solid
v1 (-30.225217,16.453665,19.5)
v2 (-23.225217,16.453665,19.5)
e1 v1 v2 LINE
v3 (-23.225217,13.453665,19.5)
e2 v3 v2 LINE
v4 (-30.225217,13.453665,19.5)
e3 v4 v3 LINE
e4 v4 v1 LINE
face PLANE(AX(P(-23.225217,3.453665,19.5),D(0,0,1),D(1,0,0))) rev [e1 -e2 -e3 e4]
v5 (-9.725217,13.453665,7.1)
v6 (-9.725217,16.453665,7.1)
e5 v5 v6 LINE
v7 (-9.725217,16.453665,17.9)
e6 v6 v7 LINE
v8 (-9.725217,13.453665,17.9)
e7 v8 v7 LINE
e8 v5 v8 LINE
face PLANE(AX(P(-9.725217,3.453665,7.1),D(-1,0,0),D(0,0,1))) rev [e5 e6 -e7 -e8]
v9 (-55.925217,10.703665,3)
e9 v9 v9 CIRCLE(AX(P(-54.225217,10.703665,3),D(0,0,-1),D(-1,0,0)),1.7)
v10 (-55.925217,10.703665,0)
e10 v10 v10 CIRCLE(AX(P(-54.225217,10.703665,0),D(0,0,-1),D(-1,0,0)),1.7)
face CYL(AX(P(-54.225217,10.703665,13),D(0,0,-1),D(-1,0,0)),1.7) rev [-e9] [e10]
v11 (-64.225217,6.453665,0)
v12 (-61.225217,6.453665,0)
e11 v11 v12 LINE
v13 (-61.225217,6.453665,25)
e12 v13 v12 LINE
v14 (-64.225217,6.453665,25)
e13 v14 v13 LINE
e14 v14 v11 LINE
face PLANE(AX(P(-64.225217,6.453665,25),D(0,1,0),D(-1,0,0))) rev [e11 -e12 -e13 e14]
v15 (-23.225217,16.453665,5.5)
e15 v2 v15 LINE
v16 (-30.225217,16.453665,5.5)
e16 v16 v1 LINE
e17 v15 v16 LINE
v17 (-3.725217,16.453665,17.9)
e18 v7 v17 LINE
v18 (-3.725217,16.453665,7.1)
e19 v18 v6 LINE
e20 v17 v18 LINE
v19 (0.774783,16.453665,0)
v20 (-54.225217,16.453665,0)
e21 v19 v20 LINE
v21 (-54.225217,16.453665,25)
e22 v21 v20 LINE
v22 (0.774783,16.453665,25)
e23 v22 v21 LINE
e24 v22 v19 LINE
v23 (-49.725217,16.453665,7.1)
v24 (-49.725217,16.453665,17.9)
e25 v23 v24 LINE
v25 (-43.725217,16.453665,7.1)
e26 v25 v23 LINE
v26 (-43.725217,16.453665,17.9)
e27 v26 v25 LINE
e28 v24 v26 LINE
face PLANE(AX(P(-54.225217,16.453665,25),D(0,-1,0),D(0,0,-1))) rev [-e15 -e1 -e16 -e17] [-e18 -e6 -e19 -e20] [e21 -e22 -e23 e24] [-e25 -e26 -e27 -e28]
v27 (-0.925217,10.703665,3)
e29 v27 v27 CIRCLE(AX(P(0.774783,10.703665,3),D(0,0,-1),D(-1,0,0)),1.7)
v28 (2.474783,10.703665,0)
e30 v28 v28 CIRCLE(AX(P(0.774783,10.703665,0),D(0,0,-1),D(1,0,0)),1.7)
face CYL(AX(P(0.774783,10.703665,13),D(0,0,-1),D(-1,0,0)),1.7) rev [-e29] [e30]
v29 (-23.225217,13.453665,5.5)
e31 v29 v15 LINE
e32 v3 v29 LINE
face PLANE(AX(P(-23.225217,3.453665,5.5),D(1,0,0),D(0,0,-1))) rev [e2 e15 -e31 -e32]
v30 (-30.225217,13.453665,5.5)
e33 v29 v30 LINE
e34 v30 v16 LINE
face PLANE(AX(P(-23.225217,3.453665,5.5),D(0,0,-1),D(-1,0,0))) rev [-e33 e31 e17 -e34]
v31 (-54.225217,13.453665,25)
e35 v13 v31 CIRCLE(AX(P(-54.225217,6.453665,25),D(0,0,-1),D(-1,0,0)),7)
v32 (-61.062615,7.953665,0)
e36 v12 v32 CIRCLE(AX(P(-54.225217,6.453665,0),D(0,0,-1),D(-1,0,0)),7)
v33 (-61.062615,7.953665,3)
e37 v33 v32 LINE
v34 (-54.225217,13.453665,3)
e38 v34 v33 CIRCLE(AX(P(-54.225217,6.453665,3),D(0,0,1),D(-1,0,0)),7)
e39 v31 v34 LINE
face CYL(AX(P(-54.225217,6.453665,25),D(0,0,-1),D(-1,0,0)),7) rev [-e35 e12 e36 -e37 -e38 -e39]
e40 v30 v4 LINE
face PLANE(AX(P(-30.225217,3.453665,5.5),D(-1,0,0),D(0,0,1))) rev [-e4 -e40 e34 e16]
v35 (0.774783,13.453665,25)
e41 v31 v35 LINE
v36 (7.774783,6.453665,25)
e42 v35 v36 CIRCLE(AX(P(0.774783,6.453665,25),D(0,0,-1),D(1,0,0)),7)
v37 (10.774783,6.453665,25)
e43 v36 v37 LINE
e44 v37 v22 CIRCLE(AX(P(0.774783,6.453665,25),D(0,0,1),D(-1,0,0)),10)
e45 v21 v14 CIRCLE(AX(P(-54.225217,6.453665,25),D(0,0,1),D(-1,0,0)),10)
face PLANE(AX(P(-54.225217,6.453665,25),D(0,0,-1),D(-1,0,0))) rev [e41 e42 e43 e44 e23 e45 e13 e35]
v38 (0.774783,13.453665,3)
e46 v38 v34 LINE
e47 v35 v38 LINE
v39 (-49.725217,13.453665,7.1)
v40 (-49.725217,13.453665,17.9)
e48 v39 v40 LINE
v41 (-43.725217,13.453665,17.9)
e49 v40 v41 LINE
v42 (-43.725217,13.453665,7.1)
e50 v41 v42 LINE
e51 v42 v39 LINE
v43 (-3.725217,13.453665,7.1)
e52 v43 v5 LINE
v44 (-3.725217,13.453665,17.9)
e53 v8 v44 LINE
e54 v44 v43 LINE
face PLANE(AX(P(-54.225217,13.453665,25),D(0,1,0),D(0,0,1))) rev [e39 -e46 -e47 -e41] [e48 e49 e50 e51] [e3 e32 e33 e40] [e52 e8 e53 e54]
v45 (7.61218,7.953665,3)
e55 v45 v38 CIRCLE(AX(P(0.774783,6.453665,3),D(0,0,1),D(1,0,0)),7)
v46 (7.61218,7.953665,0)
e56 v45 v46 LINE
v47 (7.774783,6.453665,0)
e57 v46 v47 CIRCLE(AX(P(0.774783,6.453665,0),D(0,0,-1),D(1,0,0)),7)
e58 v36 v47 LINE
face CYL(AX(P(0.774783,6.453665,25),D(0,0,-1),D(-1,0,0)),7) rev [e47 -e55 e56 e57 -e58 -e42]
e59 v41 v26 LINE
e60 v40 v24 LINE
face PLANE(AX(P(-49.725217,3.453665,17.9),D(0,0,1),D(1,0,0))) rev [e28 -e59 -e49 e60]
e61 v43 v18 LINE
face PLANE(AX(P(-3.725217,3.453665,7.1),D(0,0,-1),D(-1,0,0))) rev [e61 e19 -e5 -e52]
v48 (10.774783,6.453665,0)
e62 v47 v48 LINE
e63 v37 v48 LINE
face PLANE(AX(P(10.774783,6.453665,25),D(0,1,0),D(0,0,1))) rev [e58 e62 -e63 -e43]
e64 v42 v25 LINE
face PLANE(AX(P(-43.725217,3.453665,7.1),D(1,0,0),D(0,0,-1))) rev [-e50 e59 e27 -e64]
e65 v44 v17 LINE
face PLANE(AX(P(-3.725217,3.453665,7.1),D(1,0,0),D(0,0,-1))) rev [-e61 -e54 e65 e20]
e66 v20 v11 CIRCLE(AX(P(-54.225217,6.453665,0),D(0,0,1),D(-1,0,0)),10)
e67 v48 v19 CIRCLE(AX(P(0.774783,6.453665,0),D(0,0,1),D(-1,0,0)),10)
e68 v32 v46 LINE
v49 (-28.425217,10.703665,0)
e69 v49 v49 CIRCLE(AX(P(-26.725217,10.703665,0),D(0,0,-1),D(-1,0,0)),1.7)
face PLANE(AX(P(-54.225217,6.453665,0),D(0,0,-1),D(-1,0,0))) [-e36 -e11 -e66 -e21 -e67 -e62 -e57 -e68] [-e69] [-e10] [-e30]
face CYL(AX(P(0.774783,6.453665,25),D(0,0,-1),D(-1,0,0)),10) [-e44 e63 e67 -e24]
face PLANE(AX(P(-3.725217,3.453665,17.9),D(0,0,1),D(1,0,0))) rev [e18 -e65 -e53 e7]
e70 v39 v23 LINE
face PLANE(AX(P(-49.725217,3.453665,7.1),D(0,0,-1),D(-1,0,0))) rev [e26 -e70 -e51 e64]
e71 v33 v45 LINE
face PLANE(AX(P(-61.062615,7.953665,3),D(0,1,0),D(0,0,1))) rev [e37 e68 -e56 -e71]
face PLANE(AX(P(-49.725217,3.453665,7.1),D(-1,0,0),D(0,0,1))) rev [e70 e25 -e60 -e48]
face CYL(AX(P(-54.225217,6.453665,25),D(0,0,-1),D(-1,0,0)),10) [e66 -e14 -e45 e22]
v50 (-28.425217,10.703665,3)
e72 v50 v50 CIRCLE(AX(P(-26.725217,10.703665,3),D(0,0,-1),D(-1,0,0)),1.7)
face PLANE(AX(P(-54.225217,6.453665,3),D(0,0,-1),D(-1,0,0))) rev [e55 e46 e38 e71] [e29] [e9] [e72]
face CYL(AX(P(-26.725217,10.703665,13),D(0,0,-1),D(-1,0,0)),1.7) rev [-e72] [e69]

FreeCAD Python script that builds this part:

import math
import FreeCAD as App
import Part
import Sketcher

V = App.Vector


def add_polygon(sketch, points):
    """Adds a closed chain of lines whose ends are joined by coincident constraints."""
    first, n = sketch.GeometryCount, len(points)
    for a, b in zip(points, points[1:] + points[:1]):
        sketch.addGeometry(Part.LineSegment(App.Vector(*a, 0), App.Vector(*b, 0)), False)
    for i in range(n):
        sketch.addConstraint(Sketcher.Constraint("Coincident", first + i, 2, first + (i + 1) % n, 1))

doc = App.newDocument("Part")
params = doc.addObject("Spreadsheet::Sheet", "Params")
for row, (alias, value) in enumerate([
    ("sketch1_radius", "10 mm"),
    ("sketch1_radius2", "7 mm"),
    ("sketch1_width", "55 mm"),
    ("pad1_length", "25 mm"),
    ("sketch2_radius", "7 mm"),
    ("sketch2_width", "55 mm"),
    ("pad2_length", "3 mm"),
    ("sketch3_width", "6 mm"),
    ("sketch3_width2", "7 mm"),
    ("sketch3_height", "14 mm"),
    ("sketch3_height2", "10.8 mm"),
    ("pocket1_length", "13 mm"),
    ("sketch4_diameter", "3.4 mm"),
    ("pocket2_length", "13 mm"),
], start=1):
    params.set(f"A{row}", alias)
    params.set(f"B{row}", "=" + value)
    params.setAlias(f"B{row}", alias)

body = doc.addObject("PartDesign::Body", "Body")

# Sketch on XY plane
sketch1 = body.newObject("Sketcher::SketchObject", "Sketch")
sketch1.AttachmentSupport = (doc.getObject("XY_Plane"), [""])
sketch1.MapMode = "FlatFace"
sketch1.addGeometry([
    Part.LineSegment(V(0.774783, 16.453665, 0), V(-54.225217, 16.453665, 0)),  # 0
    Part.ArcOfCircle(Part.Circle(V(-54.225217, 6.453665, 0), V(0, 0, 1), 10), math.radians(90), math.radians(180)),  # 1
    Part.LineSegment(V(-64.225217, 6.453665, 0), V(-61.225217, 6.453665, 0)),  # 2
    Part.ArcOfCircle(Part.Circle(V(-54.225217, 6.453665, 0), V(0, 0, 1), 7), math.radians(90), math.radians(180)),  # 3
    Part.LineSegment(V(-54.225217, 13.453665, 0), V(0.774783, 13.453665, 0)),  # 4
    Part.ArcOfCircle(Part.Circle(V(0.774783, 6.453665, 0), V(0, 0, 1), 7), math.radians(0), math.radians(90)),  # 5
    Part.LineSegment(V(7.774783, 6.453665, 0), V(10.774783, 6.453665, 0)),  # 6
    Part.ArcOfCircle(Part.Circle(V(0.774783, 6.453665, 0), V(0, 0, 1), 10), math.radians(0), math.radians(90)),  # 7
], False)
sketch1.addConstraint([
    Sketcher.Constraint("Tangent", 0, 2, 1, 1),
    Sketcher.Constraint("Coincident", 1, 2, 2, 1),
    Sketcher.Constraint("Coincident", 2, 2, 3, 2),
    Sketcher.Constraint("Tangent", 3, 1, 4, 1),
    Sketcher.Constraint("Tangent", 4, 2, 5, 2),
    Sketcher.Constraint("Coincident", 5, 1, 6, 1),
    Sketcher.Constraint("Coincident", 6, 2, 7, 1),
    Sketcher.Constraint("Tangent", 7, 2, 0, 1),
    Sketcher.Constraint("Horizontal", 0),
    Sketcher.Constraint("Horizontal", 2),
    Sketcher.Constraint("Horizontal", 4),
    Sketcher.Constraint("Horizontal", 6),
    Sketcher.Constraint("Coincident", 3, 3, 1, 3),
    Sketcher.Constraint("Coincident", 7, 3, 5, 3),
    Sketcher.Constraint("Equal", 3, 5),
    Sketcher.Constraint("Horizontal", 7, 3, 1, 2),
    Sketcher.Constraint("Horizontal", 2, 2, 5, 1),
    Sketcher.Constraint("Radius", 1, 10.0),
    Sketcher.Constraint("Radius", 3, 7.0),
    Sketcher.Constraint("DistanceX", 0, 2, 0, 1, 55.0),
    Sketcher.Constraint("DistanceX", 1, 3, -1, 1, 54.225217),
    Sketcher.Constraint("DistanceY", -1, 1, 1, 3, 6.453665),
])
sketch1.setExpression("Constraints[17]", "Params.sketch1_radius")
sketch1.setExpression("Constraints[18]", "Params.sketch1_radius2")
sketch1.setExpression("Constraints[19]", "Params.sketch1_width")
pad1 = body.newObject("PartDesign::Pad", "Pad")
pad1.Profile = sketch1
pad1.setExpression("Length", "Params.pad1_length")

# Sketch on XY plane
sketch2 = body.newObject("Sketcher::SketchObject", "Sketch001")
sketch2.AttachmentSupport = (doc.getObject("XY_Plane"), [""])
sketch2.MapMode = "FlatFace"
sketch2.addGeometry([
    Part.LineSegment(V(-61.062615, 7.953665, 0), V(7.61218, 7.953665, 0)),
    Part.ArcOfCircle(Part.Circle(V(0.774783, 6.453665, 0), V(0, 0, 1), 7), math.radians(12.373625), math.radians(90)),
    Part.LineSegment(V(0.774783, 13.453665, 0), V(-54.225217, 13.453665, 0)),
    Part.ArcOfCircle(Part.Circle(V(-54.225217, 6.453665, 0), V(0, 0, 1), 7), math.radians(90), math.radians(167.626375)),
], False)
sketch2.addConstraint([
    Sketcher.Constraint("Coincident", 0, 2, 1, 1),
    Sketcher.Constraint("Tangent", 1, 2, 2, 1),
    Sketcher.Constraint("Tangent", 2, 2, 3, 1),
    Sketcher.Constraint("Coincident", 3, 2, 0, 1),
    Sketcher.Constraint("Horizontal", 0),
    Sketcher.Constraint("Horizontal", 2),
    Sketcher.Constraint("Equal", 1, 3),
    Sketcher.Constraint("Radius", 1, 7.0),
    Sketcher.Constraint("DistanceX", 2, 2, 2, 1, 55.0),
    Sketcher.Constraint("DistanceY", 1, 3, 0, 2, 1.5),
    Sketcher.Constraint("DistanceX", -1, 1, 0, 2, 7.61218),
    Sketcher.Constraint("DistanceY", -1, 1, 1, 3, 6.453665),
])
sketch2.setExpression("Constraints[7]", "Params.sketch2_radius")
sketch2.setExpression("Constraints[8]", "Params.sketch2_width")
pad2 = body.newObject("PartDesign::Pad", "Pad001")
pad2.Profile = sketch2
pad2.setExpression("Length", "Params.pad2_length")

# Sketch on XZ plane
sketch3 = body.newObject("Sketcher::SketchObject", "Sketch002")
sketch3.AttachmentSupport = (doc.getObject("XZ_Plane"), [""])
sketch3.MapMode = "FlatFace"
sketch3.AttachmentOffset = App.Placement(V(0, 0, -16.453665), App.Rotation())
add_polygon(sketch3, [(-49.725217, 7.1), (-49.725217, 17.9), (-43.725217, 17.9), (-43.725217, 7.1)])  # lines 0-3
add_polygon(sketch3, [(-9.725217, 7.1), (-9.725217, 17.9), (-3.725217, 17.9), (-3.725217, 7.1)])  # lines 4-7
add_polygon(sketch3, [(-30.225217, 5.5), (-30.225217, 19.5), (-23.225217, 19.5), (-23.225217, 5.5)])  # lines 8-11
sketch3.addConstraint([
    Sketcher.Constraint("Vertical", 0),
    Sketcher.Constraint("Horizontal", 1),
    Sketcher.Constraint("Vertical", 2),
    Sketcher.Constraint("Horizontal", 3),
    Sketcher.Constraint("Vertical", 4),
    Sketcher.Constraint("Horizontal", 5),
    Sketcher.Constraint("Vertical", 6),
    Sketcher.Constraint("Horizontal", 7),
    Sketcher.Constraint("Vertical", 8),
    Sketcher.Constraint("Horizontal", 9),
    Sketcher.Constraint("Vertical", 10),
    Sketcher.Constraint("Horizontal", 11),
    Sketcher.Constraint("Horizontal", 1, 2, 4, 2),
    Sketcher.Constraint("Horizontal", 3, 2, 6, 2),
    Sketcher.Constraint("Equal", 3, 5),
    Sketcher.Constraint("DistanceX", 1, 1, 1, 2, 6.0),
    Sketcher.Constraint("DistanceX", 9, 1, 9, 2, 7.0),
    Sketcher.Constraint("DistanceY", 8, 1, 8, 2, 14.0),
    Sketcher.Constraint("DistanceY", 0, 1, 0, 2, 10.8),
    Sketcher.Constraint("DistanceX", 1, 2, 4, 2, 34.0),
    Sketcher.Constraint("DistanceY", -1, 1, 0, 2, 17.9),
    Sketcher.Constraint("DistanceY", -1, 1, 8, 2, 19.5),
    Sketcher.Constraint("DistanceX", 1, 2, 8, 2, 13.5),
    Sketcher.Constraint("DistanceX", 0, 2, -1, 1, 49.725217),
])
sketch3.setExpression("Constraints[27]", "Params.sketch3_width")
sketch3.setExpression("Constraints[28]", "Params.sketch3_width2")
sketch3.setExpression("Constraints[29]", "Params.sketch3_height")
sketch3.setExpression("Constraints[30]", "Params.sketch3_height2")
pocket1 = body.newObject("PartDesign::Pocket", "Pocket")
pocket1.Profile = sketch3
pocket1.setExpression("Length", "Params.pocket1_length")
pocket1.Reversed = True

# Sketch on XY plane
sketch4 = body.newObject("Sketcher::SketchObject", "Sketch003")
sketch4.AttachmentSupport = (doc.getObject("XY_Plane"), [""])
sketch4.MapMode = "FlatFace"
sketch4.addGeometry([
    Part.Circle(V(0.774783, 10.703665, 0), V(0, 0, 1), 1.7),
    Part.Circle(V(-26.725217, 10.703665, 0), V(0, 0, 1), 1.7),
    Part.Circle(V(-54.225217, 10.703665, 0), V(0, 0, 1), 1.7),
], False)
sketch4.addConstraint([
    Sketcher.Constraint("Equal", 0, 1),
    Sketcher.Constraint("Equal", 1, 2),
    Sketcher.Constraint("Horizontal", 0, 3, 1, 3),
    Sketcher.Constraint("Horizontal", 1, 3, 2, 3),
    Sketcher.Constraint("Diameter", 0, 3.4),
    Sketcher.Constraint("DistanceX", 2, 3, 0, 3, 55.0),
    Sketcher.Constraint("DistanceX", 1, 3, 0, 3, 27.5),
    Sketcher.Constraint("DistanceX", -1, 1, 0, 3, 0.774783),
    Sketcher.Constraint("DistanceY", -1, 1, 0, 3, 10.703665),
])
sketch4.setExpression("Constraints[4]", "Params.sketch4_diameter")
pocket2 = body.newObject("PartDesign::Pocket", "Pocket001")
pocket2.Profile = sketch4
pocket2.setExpression("Length", "Params.pocket2_length")
pocket2.Reversed = True

doc.recompute()
